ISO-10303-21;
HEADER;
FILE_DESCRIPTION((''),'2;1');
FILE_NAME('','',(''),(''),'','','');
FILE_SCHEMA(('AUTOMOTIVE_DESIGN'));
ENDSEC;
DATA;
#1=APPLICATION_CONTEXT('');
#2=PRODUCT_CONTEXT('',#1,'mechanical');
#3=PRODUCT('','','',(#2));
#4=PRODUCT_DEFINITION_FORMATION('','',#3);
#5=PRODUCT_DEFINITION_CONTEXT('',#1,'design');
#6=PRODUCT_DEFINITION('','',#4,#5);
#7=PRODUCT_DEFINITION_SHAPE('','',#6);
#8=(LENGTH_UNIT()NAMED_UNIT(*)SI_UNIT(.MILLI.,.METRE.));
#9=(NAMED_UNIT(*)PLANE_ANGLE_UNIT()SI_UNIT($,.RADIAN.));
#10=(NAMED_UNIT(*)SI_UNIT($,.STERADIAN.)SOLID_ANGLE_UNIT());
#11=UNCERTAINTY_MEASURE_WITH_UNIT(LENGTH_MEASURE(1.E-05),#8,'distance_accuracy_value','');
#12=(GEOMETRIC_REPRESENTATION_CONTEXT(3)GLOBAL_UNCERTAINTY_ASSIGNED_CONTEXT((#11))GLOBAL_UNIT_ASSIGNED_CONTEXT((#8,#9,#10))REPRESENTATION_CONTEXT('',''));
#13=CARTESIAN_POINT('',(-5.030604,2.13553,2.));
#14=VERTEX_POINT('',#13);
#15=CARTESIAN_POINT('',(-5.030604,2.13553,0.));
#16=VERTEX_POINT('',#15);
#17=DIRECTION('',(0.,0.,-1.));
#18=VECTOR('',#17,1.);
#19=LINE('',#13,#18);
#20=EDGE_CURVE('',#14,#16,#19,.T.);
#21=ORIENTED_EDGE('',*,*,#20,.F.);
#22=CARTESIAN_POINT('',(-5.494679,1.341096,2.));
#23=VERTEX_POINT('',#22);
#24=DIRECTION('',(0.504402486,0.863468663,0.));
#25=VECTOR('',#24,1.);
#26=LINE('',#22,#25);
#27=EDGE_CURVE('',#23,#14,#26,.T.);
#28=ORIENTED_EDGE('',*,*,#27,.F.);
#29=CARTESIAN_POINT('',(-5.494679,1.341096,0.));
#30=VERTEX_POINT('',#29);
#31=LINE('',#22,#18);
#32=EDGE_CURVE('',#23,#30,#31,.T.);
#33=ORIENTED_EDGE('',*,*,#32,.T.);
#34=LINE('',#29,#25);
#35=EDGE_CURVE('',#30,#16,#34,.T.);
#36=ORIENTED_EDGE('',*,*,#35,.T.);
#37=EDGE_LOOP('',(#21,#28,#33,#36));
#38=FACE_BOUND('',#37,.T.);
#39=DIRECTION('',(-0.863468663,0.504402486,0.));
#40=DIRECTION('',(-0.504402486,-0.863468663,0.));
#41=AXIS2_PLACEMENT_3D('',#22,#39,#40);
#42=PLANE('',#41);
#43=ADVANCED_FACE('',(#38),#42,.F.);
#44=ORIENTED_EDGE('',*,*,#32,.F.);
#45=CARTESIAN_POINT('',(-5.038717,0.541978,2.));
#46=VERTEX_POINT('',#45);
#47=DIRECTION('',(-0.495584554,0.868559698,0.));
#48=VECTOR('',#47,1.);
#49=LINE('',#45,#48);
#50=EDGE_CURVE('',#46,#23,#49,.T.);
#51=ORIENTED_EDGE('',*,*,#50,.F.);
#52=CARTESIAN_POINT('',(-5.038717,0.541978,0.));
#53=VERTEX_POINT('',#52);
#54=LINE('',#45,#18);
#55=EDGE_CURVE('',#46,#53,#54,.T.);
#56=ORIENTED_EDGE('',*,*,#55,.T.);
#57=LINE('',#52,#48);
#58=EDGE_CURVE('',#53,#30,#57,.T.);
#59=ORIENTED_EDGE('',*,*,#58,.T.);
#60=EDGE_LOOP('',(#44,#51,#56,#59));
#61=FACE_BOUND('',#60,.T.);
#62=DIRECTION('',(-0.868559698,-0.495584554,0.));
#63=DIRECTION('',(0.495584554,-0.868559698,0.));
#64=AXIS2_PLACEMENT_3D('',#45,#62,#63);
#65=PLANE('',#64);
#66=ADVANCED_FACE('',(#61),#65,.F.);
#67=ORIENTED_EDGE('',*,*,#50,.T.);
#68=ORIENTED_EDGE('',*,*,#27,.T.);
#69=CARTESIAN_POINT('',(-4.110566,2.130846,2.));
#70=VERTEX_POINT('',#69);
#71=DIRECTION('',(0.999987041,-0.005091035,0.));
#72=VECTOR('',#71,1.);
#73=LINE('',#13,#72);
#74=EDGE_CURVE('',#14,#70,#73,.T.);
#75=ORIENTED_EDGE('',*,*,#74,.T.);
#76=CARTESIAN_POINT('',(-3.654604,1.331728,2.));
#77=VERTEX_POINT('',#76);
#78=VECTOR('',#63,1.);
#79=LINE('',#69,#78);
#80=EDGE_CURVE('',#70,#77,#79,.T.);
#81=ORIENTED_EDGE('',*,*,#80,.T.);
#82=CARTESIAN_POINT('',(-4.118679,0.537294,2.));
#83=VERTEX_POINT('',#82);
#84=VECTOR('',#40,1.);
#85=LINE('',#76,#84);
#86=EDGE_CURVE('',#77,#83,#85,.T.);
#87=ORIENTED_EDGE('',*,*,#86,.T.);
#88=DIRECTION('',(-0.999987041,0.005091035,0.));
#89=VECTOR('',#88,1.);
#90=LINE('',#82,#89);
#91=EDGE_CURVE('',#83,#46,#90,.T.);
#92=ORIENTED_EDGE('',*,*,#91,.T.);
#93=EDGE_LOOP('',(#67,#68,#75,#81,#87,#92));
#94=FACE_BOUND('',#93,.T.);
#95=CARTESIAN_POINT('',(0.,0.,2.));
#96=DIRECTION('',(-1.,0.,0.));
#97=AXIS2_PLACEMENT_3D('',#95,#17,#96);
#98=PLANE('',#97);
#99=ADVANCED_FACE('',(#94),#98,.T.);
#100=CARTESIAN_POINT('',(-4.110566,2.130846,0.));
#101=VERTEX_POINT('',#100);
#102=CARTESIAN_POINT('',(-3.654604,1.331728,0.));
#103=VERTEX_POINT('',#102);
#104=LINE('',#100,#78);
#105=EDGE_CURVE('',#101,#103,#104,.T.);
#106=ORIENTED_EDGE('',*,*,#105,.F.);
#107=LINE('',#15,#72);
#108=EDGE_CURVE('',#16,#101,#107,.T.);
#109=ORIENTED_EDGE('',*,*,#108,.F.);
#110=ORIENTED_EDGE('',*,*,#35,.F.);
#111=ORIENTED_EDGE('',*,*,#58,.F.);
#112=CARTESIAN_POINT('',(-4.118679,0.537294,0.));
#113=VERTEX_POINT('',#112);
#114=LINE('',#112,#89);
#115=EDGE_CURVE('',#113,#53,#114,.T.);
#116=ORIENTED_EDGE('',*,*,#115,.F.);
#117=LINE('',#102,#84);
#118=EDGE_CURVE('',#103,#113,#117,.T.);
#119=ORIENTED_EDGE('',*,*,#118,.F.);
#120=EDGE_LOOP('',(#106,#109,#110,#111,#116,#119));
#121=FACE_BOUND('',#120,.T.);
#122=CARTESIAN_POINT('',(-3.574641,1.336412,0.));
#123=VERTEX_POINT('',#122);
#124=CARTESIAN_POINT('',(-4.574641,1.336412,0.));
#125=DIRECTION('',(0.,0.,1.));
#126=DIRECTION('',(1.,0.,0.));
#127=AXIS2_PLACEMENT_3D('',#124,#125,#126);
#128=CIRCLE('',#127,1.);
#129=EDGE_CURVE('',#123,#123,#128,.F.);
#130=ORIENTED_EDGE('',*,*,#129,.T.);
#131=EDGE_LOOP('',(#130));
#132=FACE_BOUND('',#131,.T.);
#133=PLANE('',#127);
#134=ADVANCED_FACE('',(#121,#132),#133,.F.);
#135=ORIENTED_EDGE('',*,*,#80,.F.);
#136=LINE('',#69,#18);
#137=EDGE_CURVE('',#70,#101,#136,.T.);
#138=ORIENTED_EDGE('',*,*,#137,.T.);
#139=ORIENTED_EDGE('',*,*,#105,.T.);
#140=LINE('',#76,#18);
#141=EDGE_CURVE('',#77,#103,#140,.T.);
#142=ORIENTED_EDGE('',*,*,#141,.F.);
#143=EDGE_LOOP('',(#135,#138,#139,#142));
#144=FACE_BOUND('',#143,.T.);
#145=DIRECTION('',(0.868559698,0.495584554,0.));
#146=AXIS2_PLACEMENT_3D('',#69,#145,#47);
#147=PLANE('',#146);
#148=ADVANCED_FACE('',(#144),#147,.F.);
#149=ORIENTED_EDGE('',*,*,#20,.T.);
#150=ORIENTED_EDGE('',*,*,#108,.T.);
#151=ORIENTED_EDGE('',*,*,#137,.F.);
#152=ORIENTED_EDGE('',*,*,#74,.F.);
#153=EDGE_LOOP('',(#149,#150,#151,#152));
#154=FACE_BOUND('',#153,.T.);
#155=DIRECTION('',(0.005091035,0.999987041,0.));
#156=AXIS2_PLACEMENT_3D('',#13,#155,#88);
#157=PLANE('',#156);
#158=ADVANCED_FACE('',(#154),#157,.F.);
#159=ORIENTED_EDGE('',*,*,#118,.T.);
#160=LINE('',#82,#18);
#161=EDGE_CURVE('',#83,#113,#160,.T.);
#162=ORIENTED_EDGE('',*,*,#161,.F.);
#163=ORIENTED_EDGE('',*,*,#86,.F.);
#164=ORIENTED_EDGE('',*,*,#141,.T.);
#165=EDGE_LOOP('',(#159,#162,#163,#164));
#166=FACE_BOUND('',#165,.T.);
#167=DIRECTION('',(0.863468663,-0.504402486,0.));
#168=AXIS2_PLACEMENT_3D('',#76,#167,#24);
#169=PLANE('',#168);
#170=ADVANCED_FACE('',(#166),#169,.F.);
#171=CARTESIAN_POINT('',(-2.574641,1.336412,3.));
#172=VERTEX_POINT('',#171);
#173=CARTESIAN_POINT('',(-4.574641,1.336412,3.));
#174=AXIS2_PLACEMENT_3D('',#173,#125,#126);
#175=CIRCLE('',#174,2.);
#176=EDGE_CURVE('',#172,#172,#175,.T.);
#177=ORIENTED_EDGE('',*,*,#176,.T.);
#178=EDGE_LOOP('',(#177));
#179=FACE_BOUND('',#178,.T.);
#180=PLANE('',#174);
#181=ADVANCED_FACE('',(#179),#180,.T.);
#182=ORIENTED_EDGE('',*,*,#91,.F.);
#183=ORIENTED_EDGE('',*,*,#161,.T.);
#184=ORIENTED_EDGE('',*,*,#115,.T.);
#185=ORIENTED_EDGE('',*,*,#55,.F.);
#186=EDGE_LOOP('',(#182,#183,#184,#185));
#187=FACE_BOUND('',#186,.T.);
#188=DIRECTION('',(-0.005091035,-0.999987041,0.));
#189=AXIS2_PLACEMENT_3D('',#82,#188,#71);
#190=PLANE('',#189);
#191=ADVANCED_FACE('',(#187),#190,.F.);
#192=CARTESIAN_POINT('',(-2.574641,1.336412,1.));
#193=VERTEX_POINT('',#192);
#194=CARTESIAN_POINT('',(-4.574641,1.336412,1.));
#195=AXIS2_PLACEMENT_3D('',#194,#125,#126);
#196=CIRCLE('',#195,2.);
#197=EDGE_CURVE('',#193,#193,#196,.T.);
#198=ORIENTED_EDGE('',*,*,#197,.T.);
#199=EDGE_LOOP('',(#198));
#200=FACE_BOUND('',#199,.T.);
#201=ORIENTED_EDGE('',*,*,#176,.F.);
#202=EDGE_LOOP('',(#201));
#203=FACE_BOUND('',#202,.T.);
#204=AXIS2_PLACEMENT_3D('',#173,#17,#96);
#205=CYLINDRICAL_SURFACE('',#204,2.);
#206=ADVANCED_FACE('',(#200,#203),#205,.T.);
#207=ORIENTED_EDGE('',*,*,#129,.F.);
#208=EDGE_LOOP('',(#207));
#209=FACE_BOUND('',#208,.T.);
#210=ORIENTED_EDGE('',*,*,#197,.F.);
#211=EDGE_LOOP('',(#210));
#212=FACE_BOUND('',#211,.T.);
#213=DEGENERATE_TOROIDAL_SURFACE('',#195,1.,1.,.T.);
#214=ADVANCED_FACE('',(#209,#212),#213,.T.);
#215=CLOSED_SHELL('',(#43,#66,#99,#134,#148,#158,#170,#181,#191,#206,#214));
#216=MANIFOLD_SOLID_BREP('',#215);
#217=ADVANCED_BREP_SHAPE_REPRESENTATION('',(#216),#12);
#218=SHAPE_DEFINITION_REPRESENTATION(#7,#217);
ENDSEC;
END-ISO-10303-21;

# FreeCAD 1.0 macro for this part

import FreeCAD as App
import Part
import Sketcher
from FreeCAD import Vector


def edges_at(feature, points):
    """Names of the edges that pass closest to the given points."""
    edges = feature.Shape.Edges
    near = lambda p: min(range(len(edges)), key=lambda i: edges[i].distToShape(Part.Vertex(*p))[0])
    return sorted({f"Edge{near(p) + 1}" for p in points})


def add_polygon(sketch, points):
    """Adds a closed chain of lines whose ends are joined by coincident constraints."""
    first, n = sketch.GeometryCount, len(points)
    for a, b in zip(points, points[1:] + points[:1]):
        sketch.addGeometry(Part.LineSegment(App.Vector(*a, 0), App.Vector(*b, 0)), False)
    for i in range(n):
        sketch.addConstraint(Sketcher.Constraint("Coincident", first + i, 2, first + (i + 1) % n, 1))

doc = App.newDocument("Part")
body = doc.addObject("PartDesign::Body", "Body")

sketch1 = doc.addObject("Sketcher::SketchObject", "Sketch")
body.addObject(sketch1)
sketch1.AttachmentSupport = (doc.XY_Plane, [""])
sketch1.MapMode = "FlatFace"
sketch1.addGeometry(Part.Circle(Vector(-4.574641, 1.336412, 0), Vector(0, 0, 1), 2), False)
sketch1.addConstraint([
    Sketcher.Constraint("Diameter", 0, 4.0),
    Sketcher.Constraint("DistanceX", 0, 3, -1, 1, 4.574641),
    Sketcher.Constraint("DistanceY", -1, 1, 0, 3, 1.336412),
])
pad1 = doc.addObject("PartDesign::Pad", "Pad")
body.addObject(pad1)
pad1.Profile = sketch1
pad1.Length = 3

sketch2 = doc.addObject("Sketcher::SketchObject", "Sketch001")
body.addObject(sketch2)
sketch2.AttachmentSupport = (doc.XY_Plane, [""])
sketch2.MapMode = "FlatFace"
add_polygon(sketch2, [(-4.110566, 2.130846), (-3.654604, 1.331728), (-4.118679, 0.537294), (-5.038717, 0.541978), (-5.494679, 1.341096), (-5.030604, 2.13553)])
sketch2.addConstraint([
    Sketcher.Constraint("Parallel", 0, 3),
    Sketcher.Constraint("Parallel", 1, 4),
    Sketcher.Constraint("Parallel", 2, 5),
    Sketcher.Constraint("Equal", 0, 1),
    Sketcher.Constraint("Equal", 1, 2),
    Sketcher.Constraint("Equal", 2, 3),
    Sketcher.Constraint("DistanceX", 3, 2, 1, 2, 1.376),
    Sketcher.Constraint("DistanceY", 1, 2, 3, 2, 0.803802),
    Sketcher.Constraint("Distance", 0, 0.920049),
    Sketcher.Constraint("DistanceY", -1, 1, 0, 2, 1.331728),
    Sketcher.Constraint("DistanceX", 1, 2, -1, 1, 4.118679),
    Sketcher.Constraint("DistanceY", -1, 1, 2, 2, 0.541978),
])
pocket1 = doc.addObject("PartDesign::Pocket", "Pocket")
body.addObject(pocket1)
pocket1.Profile = sketch2
pocket1.Length = 2
pocket1.Reversed = True
doc.recompute()

fillet = doc.addObject("PartDesign::Fillet", "Fillet")
body.addObject(fillet)
fillet.Base = (pocket1, edges_at(pocket1, [(-6.575, 1.336, 0)]))
fillet.Radius = 1

doc.recompute()
